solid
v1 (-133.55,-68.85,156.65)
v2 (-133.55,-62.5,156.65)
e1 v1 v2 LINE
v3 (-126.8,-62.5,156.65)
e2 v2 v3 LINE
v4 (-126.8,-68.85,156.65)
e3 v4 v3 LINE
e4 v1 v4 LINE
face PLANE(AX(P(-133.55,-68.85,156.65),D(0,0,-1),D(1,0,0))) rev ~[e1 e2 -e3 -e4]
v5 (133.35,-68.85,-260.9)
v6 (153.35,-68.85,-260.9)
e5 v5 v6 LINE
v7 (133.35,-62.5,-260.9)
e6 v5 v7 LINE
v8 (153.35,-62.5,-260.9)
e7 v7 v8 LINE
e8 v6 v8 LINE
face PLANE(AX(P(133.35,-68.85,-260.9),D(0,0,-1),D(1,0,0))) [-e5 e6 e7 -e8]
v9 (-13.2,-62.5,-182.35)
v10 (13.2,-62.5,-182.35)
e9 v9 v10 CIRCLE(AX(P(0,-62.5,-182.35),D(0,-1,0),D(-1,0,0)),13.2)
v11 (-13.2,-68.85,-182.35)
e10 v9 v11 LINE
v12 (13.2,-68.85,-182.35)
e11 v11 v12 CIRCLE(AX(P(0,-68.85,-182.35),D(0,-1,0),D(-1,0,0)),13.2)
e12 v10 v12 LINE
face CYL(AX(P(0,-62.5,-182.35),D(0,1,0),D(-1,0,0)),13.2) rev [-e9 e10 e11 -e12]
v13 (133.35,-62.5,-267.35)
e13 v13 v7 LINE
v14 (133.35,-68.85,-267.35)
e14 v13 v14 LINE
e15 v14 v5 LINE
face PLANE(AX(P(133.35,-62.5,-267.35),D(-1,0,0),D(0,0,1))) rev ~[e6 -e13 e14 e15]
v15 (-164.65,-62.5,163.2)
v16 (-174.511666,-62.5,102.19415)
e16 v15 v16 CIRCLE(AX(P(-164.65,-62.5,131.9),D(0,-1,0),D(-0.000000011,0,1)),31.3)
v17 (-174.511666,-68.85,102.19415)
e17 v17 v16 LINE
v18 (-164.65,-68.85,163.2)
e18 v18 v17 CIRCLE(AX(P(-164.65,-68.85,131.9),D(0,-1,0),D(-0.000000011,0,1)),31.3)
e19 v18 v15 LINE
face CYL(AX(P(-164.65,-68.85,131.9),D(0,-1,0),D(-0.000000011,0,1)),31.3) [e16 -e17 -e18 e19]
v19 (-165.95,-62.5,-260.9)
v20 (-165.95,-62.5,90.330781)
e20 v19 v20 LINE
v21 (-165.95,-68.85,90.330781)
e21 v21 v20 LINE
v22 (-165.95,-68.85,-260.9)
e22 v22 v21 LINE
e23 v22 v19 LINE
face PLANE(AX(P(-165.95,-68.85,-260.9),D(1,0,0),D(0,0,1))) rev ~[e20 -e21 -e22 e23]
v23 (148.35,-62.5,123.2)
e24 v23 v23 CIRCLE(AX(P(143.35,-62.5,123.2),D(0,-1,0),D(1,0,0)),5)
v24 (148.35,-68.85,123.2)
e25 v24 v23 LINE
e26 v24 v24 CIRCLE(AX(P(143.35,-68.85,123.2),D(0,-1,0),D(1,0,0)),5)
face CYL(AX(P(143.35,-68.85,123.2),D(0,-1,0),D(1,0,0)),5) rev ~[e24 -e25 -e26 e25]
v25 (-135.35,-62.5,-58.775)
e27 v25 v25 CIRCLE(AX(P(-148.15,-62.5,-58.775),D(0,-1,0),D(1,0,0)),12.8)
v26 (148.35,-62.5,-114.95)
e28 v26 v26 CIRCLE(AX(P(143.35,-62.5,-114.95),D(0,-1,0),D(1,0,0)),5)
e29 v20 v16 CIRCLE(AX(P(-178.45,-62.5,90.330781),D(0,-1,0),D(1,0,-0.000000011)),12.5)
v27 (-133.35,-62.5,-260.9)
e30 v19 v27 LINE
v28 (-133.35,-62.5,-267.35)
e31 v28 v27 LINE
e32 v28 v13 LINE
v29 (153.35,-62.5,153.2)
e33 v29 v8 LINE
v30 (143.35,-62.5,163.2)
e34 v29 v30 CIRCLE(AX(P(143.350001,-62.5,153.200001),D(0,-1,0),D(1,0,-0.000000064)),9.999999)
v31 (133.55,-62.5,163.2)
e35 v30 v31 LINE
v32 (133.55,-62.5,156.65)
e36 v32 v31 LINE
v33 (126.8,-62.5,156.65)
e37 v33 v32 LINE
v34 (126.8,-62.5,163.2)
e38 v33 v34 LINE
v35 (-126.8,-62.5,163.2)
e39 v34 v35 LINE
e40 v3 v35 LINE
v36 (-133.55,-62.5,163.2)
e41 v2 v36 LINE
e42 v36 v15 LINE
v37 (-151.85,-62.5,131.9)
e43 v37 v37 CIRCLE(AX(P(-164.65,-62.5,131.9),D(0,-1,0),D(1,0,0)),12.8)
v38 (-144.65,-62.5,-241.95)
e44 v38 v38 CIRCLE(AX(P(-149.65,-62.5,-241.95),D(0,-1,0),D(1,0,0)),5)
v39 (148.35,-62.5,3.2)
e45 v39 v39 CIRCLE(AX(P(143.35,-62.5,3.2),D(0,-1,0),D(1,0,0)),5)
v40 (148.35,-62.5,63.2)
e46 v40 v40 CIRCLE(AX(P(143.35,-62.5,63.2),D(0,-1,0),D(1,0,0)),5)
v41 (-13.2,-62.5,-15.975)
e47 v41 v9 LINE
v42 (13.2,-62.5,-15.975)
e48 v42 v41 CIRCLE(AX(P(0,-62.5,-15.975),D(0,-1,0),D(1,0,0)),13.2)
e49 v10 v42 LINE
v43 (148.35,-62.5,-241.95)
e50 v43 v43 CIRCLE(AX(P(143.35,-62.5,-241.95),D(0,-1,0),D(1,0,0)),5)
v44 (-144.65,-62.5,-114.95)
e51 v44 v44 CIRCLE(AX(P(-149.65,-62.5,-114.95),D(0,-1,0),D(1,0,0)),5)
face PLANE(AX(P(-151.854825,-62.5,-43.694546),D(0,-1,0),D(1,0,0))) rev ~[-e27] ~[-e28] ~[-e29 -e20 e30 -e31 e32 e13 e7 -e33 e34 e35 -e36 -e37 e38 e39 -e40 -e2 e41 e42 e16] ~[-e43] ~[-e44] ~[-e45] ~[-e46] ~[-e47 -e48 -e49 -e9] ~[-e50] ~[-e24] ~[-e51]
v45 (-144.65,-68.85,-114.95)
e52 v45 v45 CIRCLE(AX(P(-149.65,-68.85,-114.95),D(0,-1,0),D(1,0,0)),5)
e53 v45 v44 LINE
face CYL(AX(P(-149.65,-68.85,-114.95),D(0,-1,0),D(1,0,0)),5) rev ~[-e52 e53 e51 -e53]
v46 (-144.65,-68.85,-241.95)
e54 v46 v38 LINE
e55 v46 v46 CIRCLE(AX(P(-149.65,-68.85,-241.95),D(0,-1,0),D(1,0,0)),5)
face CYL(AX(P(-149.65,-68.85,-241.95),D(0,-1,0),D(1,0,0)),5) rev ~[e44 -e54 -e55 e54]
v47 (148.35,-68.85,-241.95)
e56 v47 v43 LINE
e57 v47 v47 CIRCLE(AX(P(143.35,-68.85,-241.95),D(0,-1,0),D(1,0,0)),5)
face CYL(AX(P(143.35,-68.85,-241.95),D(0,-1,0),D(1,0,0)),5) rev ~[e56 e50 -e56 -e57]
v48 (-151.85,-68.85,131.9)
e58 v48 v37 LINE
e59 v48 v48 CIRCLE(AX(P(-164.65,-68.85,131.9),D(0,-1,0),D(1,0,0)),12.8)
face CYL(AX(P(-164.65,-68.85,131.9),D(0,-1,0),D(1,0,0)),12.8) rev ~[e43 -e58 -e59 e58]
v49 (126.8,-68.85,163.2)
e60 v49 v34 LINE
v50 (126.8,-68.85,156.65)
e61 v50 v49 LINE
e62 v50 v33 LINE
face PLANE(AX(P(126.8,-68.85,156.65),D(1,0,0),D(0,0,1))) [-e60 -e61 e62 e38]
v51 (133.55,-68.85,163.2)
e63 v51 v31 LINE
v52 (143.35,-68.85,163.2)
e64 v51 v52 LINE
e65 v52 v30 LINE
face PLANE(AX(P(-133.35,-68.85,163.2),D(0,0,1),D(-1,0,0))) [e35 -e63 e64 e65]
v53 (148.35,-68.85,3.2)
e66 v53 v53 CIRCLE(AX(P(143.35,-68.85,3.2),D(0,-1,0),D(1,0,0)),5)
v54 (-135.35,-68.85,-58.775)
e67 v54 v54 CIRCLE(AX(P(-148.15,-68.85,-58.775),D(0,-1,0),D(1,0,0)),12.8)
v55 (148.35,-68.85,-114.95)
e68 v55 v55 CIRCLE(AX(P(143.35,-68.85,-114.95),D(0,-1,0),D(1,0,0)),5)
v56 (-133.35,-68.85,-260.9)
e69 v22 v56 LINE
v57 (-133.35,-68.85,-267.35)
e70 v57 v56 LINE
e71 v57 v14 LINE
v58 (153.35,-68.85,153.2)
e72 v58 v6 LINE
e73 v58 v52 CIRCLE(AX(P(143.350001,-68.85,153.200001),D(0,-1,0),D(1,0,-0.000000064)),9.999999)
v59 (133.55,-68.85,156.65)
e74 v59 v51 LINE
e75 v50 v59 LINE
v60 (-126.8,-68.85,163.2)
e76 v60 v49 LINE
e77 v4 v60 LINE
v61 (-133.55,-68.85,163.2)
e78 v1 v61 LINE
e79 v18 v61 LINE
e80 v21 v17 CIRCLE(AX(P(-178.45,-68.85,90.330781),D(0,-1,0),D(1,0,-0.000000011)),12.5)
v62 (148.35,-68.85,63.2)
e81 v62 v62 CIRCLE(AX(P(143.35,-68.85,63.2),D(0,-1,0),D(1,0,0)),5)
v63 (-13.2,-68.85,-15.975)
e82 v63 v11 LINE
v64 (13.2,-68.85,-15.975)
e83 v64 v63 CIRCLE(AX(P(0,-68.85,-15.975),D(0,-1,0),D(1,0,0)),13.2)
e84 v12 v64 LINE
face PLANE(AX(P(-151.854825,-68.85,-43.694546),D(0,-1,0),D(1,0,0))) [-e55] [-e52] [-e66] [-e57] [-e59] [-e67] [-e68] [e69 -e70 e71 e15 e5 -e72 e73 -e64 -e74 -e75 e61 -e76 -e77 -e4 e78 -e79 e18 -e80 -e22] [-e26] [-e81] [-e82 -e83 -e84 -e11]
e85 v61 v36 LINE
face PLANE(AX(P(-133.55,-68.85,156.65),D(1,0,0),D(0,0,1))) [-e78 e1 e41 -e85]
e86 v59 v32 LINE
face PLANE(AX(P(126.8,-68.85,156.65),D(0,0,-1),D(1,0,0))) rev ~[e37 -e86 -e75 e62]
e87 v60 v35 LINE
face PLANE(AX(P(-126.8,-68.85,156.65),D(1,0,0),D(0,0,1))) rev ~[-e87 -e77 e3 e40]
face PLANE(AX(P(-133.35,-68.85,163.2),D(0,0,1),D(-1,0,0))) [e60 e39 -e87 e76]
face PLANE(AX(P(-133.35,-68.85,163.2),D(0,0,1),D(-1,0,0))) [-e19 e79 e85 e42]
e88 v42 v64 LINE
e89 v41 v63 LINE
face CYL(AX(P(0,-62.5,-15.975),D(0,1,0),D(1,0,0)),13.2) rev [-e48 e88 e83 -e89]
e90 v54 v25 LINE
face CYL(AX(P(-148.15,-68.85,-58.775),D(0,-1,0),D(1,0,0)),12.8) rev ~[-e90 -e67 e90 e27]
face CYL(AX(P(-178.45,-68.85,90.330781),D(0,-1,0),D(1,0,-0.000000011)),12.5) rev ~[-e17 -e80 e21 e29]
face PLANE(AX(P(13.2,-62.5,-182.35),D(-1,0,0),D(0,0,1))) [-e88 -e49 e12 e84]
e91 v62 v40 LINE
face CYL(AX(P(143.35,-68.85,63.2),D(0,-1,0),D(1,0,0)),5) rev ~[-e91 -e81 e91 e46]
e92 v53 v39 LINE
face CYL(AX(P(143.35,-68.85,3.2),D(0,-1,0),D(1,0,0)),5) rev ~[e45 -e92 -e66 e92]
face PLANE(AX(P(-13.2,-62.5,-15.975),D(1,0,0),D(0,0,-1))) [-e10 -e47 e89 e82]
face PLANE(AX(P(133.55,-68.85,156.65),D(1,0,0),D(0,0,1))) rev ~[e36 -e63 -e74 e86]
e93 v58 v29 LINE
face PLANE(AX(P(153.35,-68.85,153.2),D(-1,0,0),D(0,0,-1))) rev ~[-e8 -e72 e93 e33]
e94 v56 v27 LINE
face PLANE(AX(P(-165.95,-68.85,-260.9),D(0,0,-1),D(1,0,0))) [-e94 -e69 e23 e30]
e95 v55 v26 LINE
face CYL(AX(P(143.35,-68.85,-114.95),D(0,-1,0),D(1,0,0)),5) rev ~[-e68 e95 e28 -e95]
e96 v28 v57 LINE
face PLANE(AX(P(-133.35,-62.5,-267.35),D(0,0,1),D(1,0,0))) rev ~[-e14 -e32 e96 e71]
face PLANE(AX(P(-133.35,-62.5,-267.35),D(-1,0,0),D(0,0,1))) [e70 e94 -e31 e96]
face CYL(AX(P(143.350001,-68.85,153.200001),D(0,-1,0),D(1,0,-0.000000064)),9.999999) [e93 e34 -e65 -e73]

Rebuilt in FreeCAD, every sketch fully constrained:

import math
import FreeCAD as App
import Part
import Sketcher
from FreeCAD import Vector


def add_polygon(sketch, points):
    """Adds a closed chain of lines whose ends are joined by coincident constraints."""
    first, n = sketch.GeometryCount, len(points)
    for a, b in zip(points, points[1:] + points[:1]):
        sketch.addGeometry(Part.LineSegment(App.Vector(*a, 0), App.Vector(*b, 0)), False)
    for i in range(n):
        sketch.addConstraint(Sketcher.Constraint("Coincident", first + i, 2, first + (i + 1) % n, 1))

doc = App.newDocument("Part")
body = doc.addObject("PartDesign::Body", "Body")

sketch1 = body.newObject("Sketcher::SketchObject", "Sketch")
sketch1.AttachmentSupport = (doc.getObject("XZ_Plane"), [""])
sketch1.MapMode = "FlatFace"
sketch1.AttachmentOffset = App.Placement(Vector(0, 0, 62.5), App.Rotation())
add_polygon(sketch1, [(-133, 163), (-133, -267), (133, -267), (133, 163)])
sketch1.addGeometry(Part.ArcOfCircle(Part.Circle(Vector(0, -182, 0), Vector(0, 0, 1), 13), math.radians(180), math.radians(360)), False)
sketch1.addGeometry(Part.LineSegment(Vector(-13, -182, 0), Vector(-13, -16, 0)), False)
sketch1.addGeometry(Part.ArcOfCircle(Part.Circle(Vector(0, -16, 0), Vector(0, 0, 1), 13), math.radians(0), math.radians(180)), False)
sketch1.addGeometry(Part.LineSegment(Vector(13, -16, 0), Vector(13, -182, 0)), False)
sketch1.addConstraint(Sketcher.Constraint("Tangent", 4, 1, 5, 1))
sketch1.addConstraint(Sketcher.Constraint("Tangent", 5, 2, 6, 2))
sketch1.addConstraint(Sketcher.Constraint("Tangent", 6, 1, 7, 1))
sketch1.addConstraint(Sketcher.Constraint("Tangent", 7, 2, 4, 2))
sketch1.addConstraint(Sketcher.Constraint("Vertical", 0))
sketch1.addConstraint(Sketcher.Constraint("Horizontal", 1))
sketch1.addConstraint(Sketcher.Constraint("Vertical", 2))
sketch1.addConstraint(Sketcher.Constraint("Horizontal", 3))
sketch1.addConstraint(Sketcher.Constraint("Vertical", 5))
sketch1.addConstraint(Sketcher.Constraint("Vertical", 7))
sketch1.addConstraint(Sketcher.Constraint("PointOnObject", 4, 3, -2))
sketch1.addConstraint(Sketcher.Constraint("Radius", 4, 13.2))
sketch1.addConstraint(Sketcher.Constraint("DistanceX", 1, 1, 1, 2, 266.7))
sketch1.addConstraint(Sketcher.Constraint("DistanceY", 0, 2, 4, 3, 85.0))
sketch1.addConstraint(Sketcher.Constraint("DistanceY", 0, 2, 0, 1, 430.55))
sketch1.addConstraint(Sketcher.Constraint("DistanceY", -1, 1, 2, 2, 163.2))
sketch1.addConstraint(Sketcher.Constraint("DistanceY", 5, 1, 5, 2, 166.375))
sketch1.addConstraint(Sketcher.Constraint("DistanceX", 0, 2, -1, 1, 133.35))
pad1 = body.newObject("PartDesign::Pad", "Pad")
pad1.Profile = sketch1
pad1.Length = 6.35

sketch2 = body.newObject("Sketcher::SketchObject", "Sketch001")
sketch2.AttachmentSupport = (doc.getObject("XZ_Plane"), [""])
sketch2.MapMode = "FlatFace"
sketch2.AttachmentOffset = App.Placement(Vector(0, 0, 68.85), App.Rotation())
sketch2.addGeometry(Part.LineSegment(Vector(-133, 163, 0), Vector(-165, 163, 0)), False)
sketch2.addGeometry(Part.ArcOfCircle(Part.Circle(Vector(-165, 132, 0), Vector(0, 0, 1), 31), math.radians(90), math.radians(252)), False)
sketch2.addGeometry(Part.ArcOfCircle(Part.Circle(Vector(-178, 90, 0), Vector(0, 0, 1), 12), math.radians(0), math.radians(72)), False)
sketch2.addGeometry(Part.LineSegment(Vector(-166, 90, 0), Vector(-166, -261, 0)), False)
sketch2.addGeometry(Part.LineSegment(Vector(-166, -261, 0), Vector(-133, -261, 0)), False)
sketch2.addGeometry(Part.LineSegment(Vector(-133, -261, 0), Vector(-133, 163, 0)), False)
sketch2.addGeometry(Part.Circle(Vector(-150, -242, 0), Vector(0, 0, 1), 5), False)
sketch2.addGeometry(Part.Circle(Vector(-150, -115, 0), Vector(0, 0, 1), 5), False)
sketch2.addGeometry(Part.Circle(Vector(-148, -59, 0), Vector(0, 0, 1), 13), False)
sketch2.addGeometry(Part.Circle(Vector(-165, 132, 0), Vector(0, 0, 1), 13), False)
sketch2.addGeometry(Part.LineSegment(Vector(143, 163, 0), Vector(133, 163, 0)), False)
sketch2.addGeometry(Part.LineSegment(Vector(133, 163, 0), Vector(133, -261, 0)), False)
sketch2.addGeometry(Part.LineSegment(Vector(133, -261, 0), Vector(153, -261, 0)), False)
sketch2.addGeometry(Part.LineSegment(Vector(153, -261, 0), Vector(153, 153, 0)), False)
sketch2.addGeometry(Part.ArcOfCircle(Part.Circle(Vector(143, 153, 0), Vector(0, 0, 1), 10), math.radians(0), math.radians(90)), False)
sketch2.addGeometry(Part.Circle(Vector(143, -242, 0), Vector(0, 0, 1), 5), False)
sketch2.addGeometry(Part.Circle(Vector(143, -115, 0), Vector(0, 0, 1), 5), False)
sketch2.addConstraint(Sketcher.Constraint("Tangent", 0, 2, 1, 1))
sketch2.addConstraint(Sketcher.Constraint("Coincident", 1, 2, 2, 2))
sketch2.addConstraint(Sketcher.Constraint("Tangent", 2, 1, 3, 1))
sketch2.addConstraint(Sketcher.Constraint("Coincident", 3, 2, 4, 1))
sketch2.addConstraint(Sketcher.Constraint("Coincident", 4, 2, 5, 1))
sketch2.addConstraint(Sketcher.Constraint("Coincident", 5, 2, 0, 1))
sketch2.addConstraint(Sketcher.Constraint("Coincident", 10, 2, 11, 1))
sketch2.addConstraint(Sketcher.Constraint("Coincident", 11, 2, 12, 1))
sketch2.addConstraint(Sketcher.Constraint("Coincident", 12, 2, 13, 1))
sketch2.addConstraint(Sketcher.Constraint("Tangent", 13, 2, 14, 1))
sketch2.addConstraint(Sketcher.Constraint("Tangent", 14, 2, 10, 1))
sketch2.addConstraint(Sketcher.Constraint("Horizontal", 0))
sketch2.addConstraint(Sketcher.Constraint("Vertical", 3))
sketch2.addConstraint(Sketcher.Constraint("Horizontal", 4))
sketch2.addConstraint(Sketcher.Constraint("Vertical", 5))
sketch2.addConstraint(Sketcher.Constraint("Horizontal", 10))
sketch2.addConstraint(Sketcher.Constraint("Vertical", 11))
sketch2.addConstraint(Sketcher.Constraint("Horizontal", 12))
sketch2.addConstraint(Sketcher.Constraint("Vertical", 13))
sketch2.addConstraint(Sketcher.Constraint("Coincident", 9, 3, 1, 3))
sketch2.addConstraint(Sketcher.Constraint("Equal", 6, 7))
sketch2.addConstraint(Sketcher.Constraint("Equal", 8, 9))
sketch2.addConstraint(Sketcher.Constraint("Equal", 7, 15))
sketch2.addConstraint(Sketcher.Constraint("Equal", 15, 16))
sketch2.addConstraint(Sketcher.Constraint("Symmetric", 5, 2, 10, 2, -2))
sketch2.addConstraint(Sketcher.Constraint("Horizontal", 6, 3, 15, 3))
sketch2.addConstraint(Sketcher.Constraint("Horizontal", 7, 3, 16, 3))
sketch2.addConstraint(Sketcher.Constraint("Horizontal", 4, 2, 11, 2))
sketch2.addConstraint(Sketcher.Constraint("Vertical", 6, 3, 7, 3))
sketch2.addConstraint(Sketcher.Constraint("Vertical", 14, 3, 15, 3))
sketch2.addConstraint(Sketcher.Constraint("Vertical", 15, 3, 16, 3))
sketch2.addConstraint(Sketcher.Constraint("Diameter", 6, 10.0))
sketch2.addConstraint(Sketcher.Constraint("Radius", 14, 9.999999))
sketch2.addConstraint(Sketcher.Constraint("Diameter", 8, 25.6))
sketch2.addConstraint(Sketcher.Constraint("Radius", 1, 31.3))
sketch2.addConstraint(Sketcher.Constraint("Radius", 2, 12.5))
sketch2.addConstraint(Sketcher.Constraint("DistanceX", 10, 2, 10, 1, 10.0))
sketch2.addConstraint(Sketcher.Constraint("DistanceX", 0, 2, 0, 1, 31.3))
sketch2.addConstraint(Sketcher.Constraint("DistanceX", 4, 1, 4, 2, 32.6))
sketch2.addConstraint(Sketcher.Constraint("DistanceY", 5, 1, 5, 2, 424.1))
sketch2.addConstraint(Sketcher.Constraint("DistanceX", 1, 3, 6, 3, 15.0))
sketch2.addConstraint(Sketcher.Constraint("DistanceY", 6, 3, 7, 3, 127.0))
sketch2.addConstraint(Sketcher.Constraint("DistanceX", 1, 3, 14, 3, 308.0))
sketch2.addConstraint(Sketcher.Constraint("DistanceY", -1, 1, 1, 3, 131.9))
sketch2.addConstraint(Sketcher.Constraint("DistanceX", 7, 3, 8, 3, 1.5))
sketch2.addConstraint(Sketcher.Constraint("DistanceY", 6, 3, -1, 1, 241.95))
sketch2.addConstraint(Sketcher.Constraint("DistanceY", 8, 3, -1, 1, 58.775))
sketch2.addConstraint(Sketcher.Constraint("DistanceY", -1, 1, 1, 2, 102.19415))
pad2 = body.newObject("PartDesign::Pad", "Pad001")
pad2.Profile = sketch2
pad2.Length = 6.35
pad2.Reversed = True

sketch3 = body.newObject("Sketcher::SketchObject", "Sketch002")
sketch3.AttachmentSupport = (doc.getObject("XZ_Plane"), [""])
sketch3.MapMode = "FlatFace"
sketch3.AttachmentOffset = App.Placement(Vector(0, 0, 68.85), App.Rotation())
add_polygon(sketch3, [(-134, 163), (-134, 157), (-127, 157), (-127, 163)])
add_polygon(sketch3, [(127, 163), (127, 157), (134, 157), (134, 163)])
sketch3.addConstraint(Sketcher.Constraint("Vertical", 0))
sketch3.addConstraint(Sketcher.Constraint("Horizontal", 1))
sketch3.addConstraint(Sketcher.Constraint("Vertical", 2))
sketch3.addConstraint(Sketcher.Constraint("Horizontal", 3))
sketch3.addConstraint(Sketcher.Constraint("Vertical", 4))
sketch3.addConstraint(Sketcher.Constraint("Horizontal", 5))
sketch3.addConstraint(Sketcher.Constraint("Vertical", 6))
sketch3.addConstraint(Sketcher.Constraint("Horizontal", 7))
sketch3.addConstraint(Sketcher.Constraint("Symmetric", 1, 2, 4, 2, -2))
sketch3.addConstraint(Sketcher.Constraint("Symmetric", 3, 2, 6, 2, -2))
sketch3.addConstraint(Sketcher.Constraint("DistanceX", 1, 1, 1, 2, 6.75))
sketch3.addConstraint(Sketcher.Constraint("DistanceY", 0, 2, 0, 1, 6.55))
sketch3.addConstraint(Sketcher.Constraint("DistanceX", 1, 2, -1, 1, 126.8))
sketch3.addConstraint(Sketcher.Constraint("DistanceY", -1, 1, 2, 2, 163.2))
pocket1 = body.newObject("PartDesign::Pocket", "Pocket")
pocket1.Profile = sketch3
pocket1.Length = 6.35

sketch4 = body.newObject("Sketcher::SketchObject", "Sketch003")
sketch4.AttachmentSupport = (doc.getObject("XZ_Plane"), [""])
sketch4.MapMode = "FlatFace"
sketch4.AttachmentOffset = App.Placement(Vector(0, 0, 68.85), App.Rotation())
sketch4.addGeometry(Part.Circle(Vector(143, 123, 0), Vector(0, 0, 1), 5), False)
sketch4.addGeometry(Part.Circle(Vector(143, 63, 0), Vector(0, 0, 1), 5), False)
sketch4.addGeometry(Part.Circle(Vector(143, 3, 0), Vector(0, 0, 1), 5), False)
sketch4.addConstraint(Sketcher.Constraint("Equal", 0, 1))
sketch4.addConstraint(Sketcher.Constraint("Equal", 1, 2))
sketch4.addConstraint(Sketcher.Constraint("Vertical", 0, 3, 1, 3))
sketch4.addConstraint(Sketcher.Constraint("Vertical", 1, 3, 2, 3))
sketch4.addConstraint(Sketcher.Constraint("Diameter", 0, 10.0))
sketch4.addConstraint(Sketcher.Constraint("DistanceY", 1, 3, 0, 3, 60.0))
sketch4.addConstraint(Sketcher.Constraint("DistanceY", 2, 3, 1, 3, 60.0))
sketch4.addConstraint(Sketcher.Constraint("DistanceY", -1, 1, 0, 3, 123.2))
sketch4.addConstraint(Sketcher.Constraint("DistanceX", -1, 1, 0, 3, 143.35))
pocket2 = body.newObject("PartDesign::Pocket", "Pocket001")
pocket2.Profile = sketch4
pocket2.Length = 100

doc.recompute()
